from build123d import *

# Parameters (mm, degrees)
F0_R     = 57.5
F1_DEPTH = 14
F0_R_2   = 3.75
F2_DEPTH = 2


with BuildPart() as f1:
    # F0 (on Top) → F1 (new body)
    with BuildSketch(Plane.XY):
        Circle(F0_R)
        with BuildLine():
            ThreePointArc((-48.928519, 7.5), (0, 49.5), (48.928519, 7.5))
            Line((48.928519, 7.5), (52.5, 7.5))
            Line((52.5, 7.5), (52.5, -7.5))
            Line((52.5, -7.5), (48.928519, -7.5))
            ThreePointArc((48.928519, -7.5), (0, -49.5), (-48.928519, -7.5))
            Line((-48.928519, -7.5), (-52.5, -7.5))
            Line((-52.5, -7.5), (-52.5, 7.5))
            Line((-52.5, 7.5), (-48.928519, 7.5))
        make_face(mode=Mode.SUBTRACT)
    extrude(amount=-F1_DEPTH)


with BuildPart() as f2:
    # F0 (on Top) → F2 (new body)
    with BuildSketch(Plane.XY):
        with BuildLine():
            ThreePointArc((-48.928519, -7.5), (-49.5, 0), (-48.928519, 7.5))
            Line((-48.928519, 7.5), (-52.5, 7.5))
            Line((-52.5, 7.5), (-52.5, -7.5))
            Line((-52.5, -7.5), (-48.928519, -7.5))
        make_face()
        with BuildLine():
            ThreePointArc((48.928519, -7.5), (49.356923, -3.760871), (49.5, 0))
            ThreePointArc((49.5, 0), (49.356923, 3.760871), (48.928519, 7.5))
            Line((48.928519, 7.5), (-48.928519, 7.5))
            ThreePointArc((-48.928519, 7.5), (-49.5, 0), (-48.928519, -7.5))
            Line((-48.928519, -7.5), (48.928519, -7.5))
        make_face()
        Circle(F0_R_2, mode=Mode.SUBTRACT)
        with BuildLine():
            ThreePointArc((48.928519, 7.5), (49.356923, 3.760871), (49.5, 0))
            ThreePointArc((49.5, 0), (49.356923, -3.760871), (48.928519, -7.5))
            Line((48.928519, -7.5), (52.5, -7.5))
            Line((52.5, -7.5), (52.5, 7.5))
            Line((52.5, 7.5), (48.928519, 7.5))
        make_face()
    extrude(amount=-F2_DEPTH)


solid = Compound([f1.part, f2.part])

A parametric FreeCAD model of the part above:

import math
import FreeCAD as App
import Part
import Sketcher


def add_polygon(sketch, points):
    """Adds a closed chain of lines whose ends are joined by coincident constraints."""
    first, n = sketch.GeometryCount, len(points)
    for a, b in zip(points, points[1:] + points[:1]):
        sketch.addGeometry(Part.LineSegment(App.Vector(*a, 0), App.Vector(*b, 0)), False)
    for i in range(n):
        sketch.addConstraint(Sketcher.Constraint("Coincident", first + i, 2, first + (i + 1) % n, 1))

doc = App.newDocument("Part")
params = doc.addObject("Spreadsheet::Sheet", "Params")
for row, (alias, value) in enumerate([
    ("sketch1_diameter", "115 mm"),
    ("sketch1_radius", "49.5 mm"),
    ("sketch1_height", "15 mm"),
    ("pad1_length", "14 mm"),
    ("sketch2_diameter", "7.5 mm"),
    ("sketch2_width", "105 mm"),
    ("sketch2_height", "15 mm"),
    ("pad2_length", "2 mm"),
], start=1):
    params.set(f"A{row}", alias)
    params.set(f"B{row}", "=" + value)
    params.setAlias(f"B{row}", alias)

body = doc.addObject("PartDesign::Body", "Body")

# Sketch on XY plane
sketch1 = doc.addObject("Sketcher::SketchObject", "Sketch")
body.addObject(sketch1)
sketch1.AttachmentSupport = (doc.XY_Plane, [""])
sketch1.MapMode = "FlatFace"
sketch1.addGeometry([
    Part.Circle(App.Vector(0, 0, 0), App.Vector(0, 0, 1), 57.5),  # 0
    Part.LineSegment(App.Vector(-52.5, 7.5, 0), App.Vector(-48.9, 7.5, 0)),  # 1
    Part.ArcOfCircle(Part.Circle(App.Vector(0, 0, 0), App.Vector(0, 0, 1), 49.5), math.radians(9), math.radians(171)),  # 2
    Part.LineSegment(App.Vector(48.9, 7.5, 0), App.Vector(52.5, 7.5, 0)),  # 3
    Part.LineSegment(App.Vector(52.5, 7.5, 0), App.Vector(52.5, -7.5, 0)),  # 4
    Part.LineSegment(App.Vector(52.5, -7.5, 0), App.Vector(48.9, -7.5, 0)),  # 5
    Part.ArcOfCircle(Part.Circle(App.Vector(0, 0, 0), App.Vector(0, 0, 1), 49.5), math.radians(-171), math.radians(-9)),  # 6
    Part.LineSegment(App.Vector(-48.9, -7.5, 0), App.Vector(-52.5, -7.5, 0)),  # 7
    Part.LineSegment(App.Vector(-52.5, -7.5, 0), App.Vector(-52.5, 7.5, 0)),  # 8
], False)
sketch1.addConstraint([
    Sketcher.Constraint("Coincident", 1, 2, 2, 2),
    Sketcher.Constraint("Coincident", 2, 1, 3, 1),
    Sketcher.Constraint("Coincident", 3, 2, 4, 1),
    Sketcher.Constraint("Coincident", 4, 2, 5, 1),
    Sketcher.Constraint("Coincident", 5, 2, 6, 2),
    Sketcher.Constraint("Coincident", 6, 1, 7, 1),
    Sketcher.Constraint("Coincident", 7, 2, 8, 1),
    Sketcher.Constraint("Coincident", 8, 2, 1, 1),
    Sketcher.Constraint("Horizontal", 1),
    Sketcher.Constraint("Horizontal", 3),
    Sketcher.Constraint("Vertical", 4),
    Sketcher.Constraint("Horizontal", 5),
    Sketcher.Constraint("Horizontal", 7),
    Sketcher.Constraint("Vertical", 8),
    Sketcher.Constraint("Coincident", 0, 3, -1, 1),
    Sketcher.Constraint("Coincident", 2, 3, -1, 1),
    Sketcher.Constraint("Coincident", 6, 3, -1, 1),
    Sketcher.Constraint("Equal", 2, 6),
    Sketcher.Constraint("Symmetric", 3, 2, 7, 2, -1, 1),
    Sketcher.Constraint("Horizontal", 1, 2, 2, 1),
    Sketcher.Constraint("Horizontal", 5, 2, 6, 1),
    Sketcher.Constraint("Diameter", 0, 115.0),
    Sketcher.Constraint("Radius", 2, 49.5),
    Sketcher.Constraint("DistanceY", 4, 2, 4, 1, 15.0),
    Sketcher.Constraint("DistanceX", -1, 1, 3, 2, 52.5),
])
sketch1.setExpression("Constraints[21]", "Params.sketch1_diameter")
sketch1.setExpression("Constraints[22]", "Params.sketch1_radius")
sketch1.setExpression("Constraints[23]", "Params.sketch1_height")
pad1 = doc.addObject("PartDesign::Pad", "Pad")
body.addObject(pad1)
pad1.Profile = sketch1
pad1.setExpression("Length", "Params.pad1_length")
pad1.Reversed = True
body2 = doc.addObject("PartDesign::Body", "Body001")

# Sketch on XY plane
sketch2 = doc.addObject("Sketcher::SketchObject", "Sketch001")
body2.addObject(sketch2)
sketch2.AttachmentSupport = (doc.getObject("XY_Plane001"), [""])
sketch2.MapMode = "FlatFace"
add_polygon(sketch2, [(-52.5, 7.5), (-52.5, -7.5), (52.5, -7.5), (52.5, 7.5)])  # lines 0-3
sketch2.addGeometry(Part.Circle(App.Vector(0, 0, 0), App.Vector(0, 0, 1), 3.8), False)  # 4
sketch2.addConstraint([
    Sketcher.Constraint("Vertical", 0),
    Sketcher.Constraint("Horizontal", 1),
    Sketcher.Constraint("Vertical", 2),
    Sketcher.Constraint("Horizontal", 3),
    Sketcher.Constraint("Coincident", 4, 3, -1, 1),
    Sketcher.Constraint("Symmetric", 0, 2, 2, 2, -1, 1),
    Sketcher.Constraint("Diameter", 4, 7.5),
    Sketcher.Constraint("DistanceX", 1, 1, 1, 2, 105.0),
    Sketcher.Constraint("DistanceY", 0, 2, 0, 1, 15.0),
])
sketch2.setExpression("Constraints[10]", "Params.sketch2_diameter")
sketch2.setExpression("Constraints[11]", "Params.sketch2_width")
sketch2.setExpression("Constraints[12]", "Params.sketch2_height")
pad2 = doc.addObject("PartDesign::Pad", "Pad001")
body2.addObject(pad2)
pad2.Profile = sketch2
pad2.setExpression("Length", "Params.pad2_length")
pad2.Reversed = True

doc.recompute()
